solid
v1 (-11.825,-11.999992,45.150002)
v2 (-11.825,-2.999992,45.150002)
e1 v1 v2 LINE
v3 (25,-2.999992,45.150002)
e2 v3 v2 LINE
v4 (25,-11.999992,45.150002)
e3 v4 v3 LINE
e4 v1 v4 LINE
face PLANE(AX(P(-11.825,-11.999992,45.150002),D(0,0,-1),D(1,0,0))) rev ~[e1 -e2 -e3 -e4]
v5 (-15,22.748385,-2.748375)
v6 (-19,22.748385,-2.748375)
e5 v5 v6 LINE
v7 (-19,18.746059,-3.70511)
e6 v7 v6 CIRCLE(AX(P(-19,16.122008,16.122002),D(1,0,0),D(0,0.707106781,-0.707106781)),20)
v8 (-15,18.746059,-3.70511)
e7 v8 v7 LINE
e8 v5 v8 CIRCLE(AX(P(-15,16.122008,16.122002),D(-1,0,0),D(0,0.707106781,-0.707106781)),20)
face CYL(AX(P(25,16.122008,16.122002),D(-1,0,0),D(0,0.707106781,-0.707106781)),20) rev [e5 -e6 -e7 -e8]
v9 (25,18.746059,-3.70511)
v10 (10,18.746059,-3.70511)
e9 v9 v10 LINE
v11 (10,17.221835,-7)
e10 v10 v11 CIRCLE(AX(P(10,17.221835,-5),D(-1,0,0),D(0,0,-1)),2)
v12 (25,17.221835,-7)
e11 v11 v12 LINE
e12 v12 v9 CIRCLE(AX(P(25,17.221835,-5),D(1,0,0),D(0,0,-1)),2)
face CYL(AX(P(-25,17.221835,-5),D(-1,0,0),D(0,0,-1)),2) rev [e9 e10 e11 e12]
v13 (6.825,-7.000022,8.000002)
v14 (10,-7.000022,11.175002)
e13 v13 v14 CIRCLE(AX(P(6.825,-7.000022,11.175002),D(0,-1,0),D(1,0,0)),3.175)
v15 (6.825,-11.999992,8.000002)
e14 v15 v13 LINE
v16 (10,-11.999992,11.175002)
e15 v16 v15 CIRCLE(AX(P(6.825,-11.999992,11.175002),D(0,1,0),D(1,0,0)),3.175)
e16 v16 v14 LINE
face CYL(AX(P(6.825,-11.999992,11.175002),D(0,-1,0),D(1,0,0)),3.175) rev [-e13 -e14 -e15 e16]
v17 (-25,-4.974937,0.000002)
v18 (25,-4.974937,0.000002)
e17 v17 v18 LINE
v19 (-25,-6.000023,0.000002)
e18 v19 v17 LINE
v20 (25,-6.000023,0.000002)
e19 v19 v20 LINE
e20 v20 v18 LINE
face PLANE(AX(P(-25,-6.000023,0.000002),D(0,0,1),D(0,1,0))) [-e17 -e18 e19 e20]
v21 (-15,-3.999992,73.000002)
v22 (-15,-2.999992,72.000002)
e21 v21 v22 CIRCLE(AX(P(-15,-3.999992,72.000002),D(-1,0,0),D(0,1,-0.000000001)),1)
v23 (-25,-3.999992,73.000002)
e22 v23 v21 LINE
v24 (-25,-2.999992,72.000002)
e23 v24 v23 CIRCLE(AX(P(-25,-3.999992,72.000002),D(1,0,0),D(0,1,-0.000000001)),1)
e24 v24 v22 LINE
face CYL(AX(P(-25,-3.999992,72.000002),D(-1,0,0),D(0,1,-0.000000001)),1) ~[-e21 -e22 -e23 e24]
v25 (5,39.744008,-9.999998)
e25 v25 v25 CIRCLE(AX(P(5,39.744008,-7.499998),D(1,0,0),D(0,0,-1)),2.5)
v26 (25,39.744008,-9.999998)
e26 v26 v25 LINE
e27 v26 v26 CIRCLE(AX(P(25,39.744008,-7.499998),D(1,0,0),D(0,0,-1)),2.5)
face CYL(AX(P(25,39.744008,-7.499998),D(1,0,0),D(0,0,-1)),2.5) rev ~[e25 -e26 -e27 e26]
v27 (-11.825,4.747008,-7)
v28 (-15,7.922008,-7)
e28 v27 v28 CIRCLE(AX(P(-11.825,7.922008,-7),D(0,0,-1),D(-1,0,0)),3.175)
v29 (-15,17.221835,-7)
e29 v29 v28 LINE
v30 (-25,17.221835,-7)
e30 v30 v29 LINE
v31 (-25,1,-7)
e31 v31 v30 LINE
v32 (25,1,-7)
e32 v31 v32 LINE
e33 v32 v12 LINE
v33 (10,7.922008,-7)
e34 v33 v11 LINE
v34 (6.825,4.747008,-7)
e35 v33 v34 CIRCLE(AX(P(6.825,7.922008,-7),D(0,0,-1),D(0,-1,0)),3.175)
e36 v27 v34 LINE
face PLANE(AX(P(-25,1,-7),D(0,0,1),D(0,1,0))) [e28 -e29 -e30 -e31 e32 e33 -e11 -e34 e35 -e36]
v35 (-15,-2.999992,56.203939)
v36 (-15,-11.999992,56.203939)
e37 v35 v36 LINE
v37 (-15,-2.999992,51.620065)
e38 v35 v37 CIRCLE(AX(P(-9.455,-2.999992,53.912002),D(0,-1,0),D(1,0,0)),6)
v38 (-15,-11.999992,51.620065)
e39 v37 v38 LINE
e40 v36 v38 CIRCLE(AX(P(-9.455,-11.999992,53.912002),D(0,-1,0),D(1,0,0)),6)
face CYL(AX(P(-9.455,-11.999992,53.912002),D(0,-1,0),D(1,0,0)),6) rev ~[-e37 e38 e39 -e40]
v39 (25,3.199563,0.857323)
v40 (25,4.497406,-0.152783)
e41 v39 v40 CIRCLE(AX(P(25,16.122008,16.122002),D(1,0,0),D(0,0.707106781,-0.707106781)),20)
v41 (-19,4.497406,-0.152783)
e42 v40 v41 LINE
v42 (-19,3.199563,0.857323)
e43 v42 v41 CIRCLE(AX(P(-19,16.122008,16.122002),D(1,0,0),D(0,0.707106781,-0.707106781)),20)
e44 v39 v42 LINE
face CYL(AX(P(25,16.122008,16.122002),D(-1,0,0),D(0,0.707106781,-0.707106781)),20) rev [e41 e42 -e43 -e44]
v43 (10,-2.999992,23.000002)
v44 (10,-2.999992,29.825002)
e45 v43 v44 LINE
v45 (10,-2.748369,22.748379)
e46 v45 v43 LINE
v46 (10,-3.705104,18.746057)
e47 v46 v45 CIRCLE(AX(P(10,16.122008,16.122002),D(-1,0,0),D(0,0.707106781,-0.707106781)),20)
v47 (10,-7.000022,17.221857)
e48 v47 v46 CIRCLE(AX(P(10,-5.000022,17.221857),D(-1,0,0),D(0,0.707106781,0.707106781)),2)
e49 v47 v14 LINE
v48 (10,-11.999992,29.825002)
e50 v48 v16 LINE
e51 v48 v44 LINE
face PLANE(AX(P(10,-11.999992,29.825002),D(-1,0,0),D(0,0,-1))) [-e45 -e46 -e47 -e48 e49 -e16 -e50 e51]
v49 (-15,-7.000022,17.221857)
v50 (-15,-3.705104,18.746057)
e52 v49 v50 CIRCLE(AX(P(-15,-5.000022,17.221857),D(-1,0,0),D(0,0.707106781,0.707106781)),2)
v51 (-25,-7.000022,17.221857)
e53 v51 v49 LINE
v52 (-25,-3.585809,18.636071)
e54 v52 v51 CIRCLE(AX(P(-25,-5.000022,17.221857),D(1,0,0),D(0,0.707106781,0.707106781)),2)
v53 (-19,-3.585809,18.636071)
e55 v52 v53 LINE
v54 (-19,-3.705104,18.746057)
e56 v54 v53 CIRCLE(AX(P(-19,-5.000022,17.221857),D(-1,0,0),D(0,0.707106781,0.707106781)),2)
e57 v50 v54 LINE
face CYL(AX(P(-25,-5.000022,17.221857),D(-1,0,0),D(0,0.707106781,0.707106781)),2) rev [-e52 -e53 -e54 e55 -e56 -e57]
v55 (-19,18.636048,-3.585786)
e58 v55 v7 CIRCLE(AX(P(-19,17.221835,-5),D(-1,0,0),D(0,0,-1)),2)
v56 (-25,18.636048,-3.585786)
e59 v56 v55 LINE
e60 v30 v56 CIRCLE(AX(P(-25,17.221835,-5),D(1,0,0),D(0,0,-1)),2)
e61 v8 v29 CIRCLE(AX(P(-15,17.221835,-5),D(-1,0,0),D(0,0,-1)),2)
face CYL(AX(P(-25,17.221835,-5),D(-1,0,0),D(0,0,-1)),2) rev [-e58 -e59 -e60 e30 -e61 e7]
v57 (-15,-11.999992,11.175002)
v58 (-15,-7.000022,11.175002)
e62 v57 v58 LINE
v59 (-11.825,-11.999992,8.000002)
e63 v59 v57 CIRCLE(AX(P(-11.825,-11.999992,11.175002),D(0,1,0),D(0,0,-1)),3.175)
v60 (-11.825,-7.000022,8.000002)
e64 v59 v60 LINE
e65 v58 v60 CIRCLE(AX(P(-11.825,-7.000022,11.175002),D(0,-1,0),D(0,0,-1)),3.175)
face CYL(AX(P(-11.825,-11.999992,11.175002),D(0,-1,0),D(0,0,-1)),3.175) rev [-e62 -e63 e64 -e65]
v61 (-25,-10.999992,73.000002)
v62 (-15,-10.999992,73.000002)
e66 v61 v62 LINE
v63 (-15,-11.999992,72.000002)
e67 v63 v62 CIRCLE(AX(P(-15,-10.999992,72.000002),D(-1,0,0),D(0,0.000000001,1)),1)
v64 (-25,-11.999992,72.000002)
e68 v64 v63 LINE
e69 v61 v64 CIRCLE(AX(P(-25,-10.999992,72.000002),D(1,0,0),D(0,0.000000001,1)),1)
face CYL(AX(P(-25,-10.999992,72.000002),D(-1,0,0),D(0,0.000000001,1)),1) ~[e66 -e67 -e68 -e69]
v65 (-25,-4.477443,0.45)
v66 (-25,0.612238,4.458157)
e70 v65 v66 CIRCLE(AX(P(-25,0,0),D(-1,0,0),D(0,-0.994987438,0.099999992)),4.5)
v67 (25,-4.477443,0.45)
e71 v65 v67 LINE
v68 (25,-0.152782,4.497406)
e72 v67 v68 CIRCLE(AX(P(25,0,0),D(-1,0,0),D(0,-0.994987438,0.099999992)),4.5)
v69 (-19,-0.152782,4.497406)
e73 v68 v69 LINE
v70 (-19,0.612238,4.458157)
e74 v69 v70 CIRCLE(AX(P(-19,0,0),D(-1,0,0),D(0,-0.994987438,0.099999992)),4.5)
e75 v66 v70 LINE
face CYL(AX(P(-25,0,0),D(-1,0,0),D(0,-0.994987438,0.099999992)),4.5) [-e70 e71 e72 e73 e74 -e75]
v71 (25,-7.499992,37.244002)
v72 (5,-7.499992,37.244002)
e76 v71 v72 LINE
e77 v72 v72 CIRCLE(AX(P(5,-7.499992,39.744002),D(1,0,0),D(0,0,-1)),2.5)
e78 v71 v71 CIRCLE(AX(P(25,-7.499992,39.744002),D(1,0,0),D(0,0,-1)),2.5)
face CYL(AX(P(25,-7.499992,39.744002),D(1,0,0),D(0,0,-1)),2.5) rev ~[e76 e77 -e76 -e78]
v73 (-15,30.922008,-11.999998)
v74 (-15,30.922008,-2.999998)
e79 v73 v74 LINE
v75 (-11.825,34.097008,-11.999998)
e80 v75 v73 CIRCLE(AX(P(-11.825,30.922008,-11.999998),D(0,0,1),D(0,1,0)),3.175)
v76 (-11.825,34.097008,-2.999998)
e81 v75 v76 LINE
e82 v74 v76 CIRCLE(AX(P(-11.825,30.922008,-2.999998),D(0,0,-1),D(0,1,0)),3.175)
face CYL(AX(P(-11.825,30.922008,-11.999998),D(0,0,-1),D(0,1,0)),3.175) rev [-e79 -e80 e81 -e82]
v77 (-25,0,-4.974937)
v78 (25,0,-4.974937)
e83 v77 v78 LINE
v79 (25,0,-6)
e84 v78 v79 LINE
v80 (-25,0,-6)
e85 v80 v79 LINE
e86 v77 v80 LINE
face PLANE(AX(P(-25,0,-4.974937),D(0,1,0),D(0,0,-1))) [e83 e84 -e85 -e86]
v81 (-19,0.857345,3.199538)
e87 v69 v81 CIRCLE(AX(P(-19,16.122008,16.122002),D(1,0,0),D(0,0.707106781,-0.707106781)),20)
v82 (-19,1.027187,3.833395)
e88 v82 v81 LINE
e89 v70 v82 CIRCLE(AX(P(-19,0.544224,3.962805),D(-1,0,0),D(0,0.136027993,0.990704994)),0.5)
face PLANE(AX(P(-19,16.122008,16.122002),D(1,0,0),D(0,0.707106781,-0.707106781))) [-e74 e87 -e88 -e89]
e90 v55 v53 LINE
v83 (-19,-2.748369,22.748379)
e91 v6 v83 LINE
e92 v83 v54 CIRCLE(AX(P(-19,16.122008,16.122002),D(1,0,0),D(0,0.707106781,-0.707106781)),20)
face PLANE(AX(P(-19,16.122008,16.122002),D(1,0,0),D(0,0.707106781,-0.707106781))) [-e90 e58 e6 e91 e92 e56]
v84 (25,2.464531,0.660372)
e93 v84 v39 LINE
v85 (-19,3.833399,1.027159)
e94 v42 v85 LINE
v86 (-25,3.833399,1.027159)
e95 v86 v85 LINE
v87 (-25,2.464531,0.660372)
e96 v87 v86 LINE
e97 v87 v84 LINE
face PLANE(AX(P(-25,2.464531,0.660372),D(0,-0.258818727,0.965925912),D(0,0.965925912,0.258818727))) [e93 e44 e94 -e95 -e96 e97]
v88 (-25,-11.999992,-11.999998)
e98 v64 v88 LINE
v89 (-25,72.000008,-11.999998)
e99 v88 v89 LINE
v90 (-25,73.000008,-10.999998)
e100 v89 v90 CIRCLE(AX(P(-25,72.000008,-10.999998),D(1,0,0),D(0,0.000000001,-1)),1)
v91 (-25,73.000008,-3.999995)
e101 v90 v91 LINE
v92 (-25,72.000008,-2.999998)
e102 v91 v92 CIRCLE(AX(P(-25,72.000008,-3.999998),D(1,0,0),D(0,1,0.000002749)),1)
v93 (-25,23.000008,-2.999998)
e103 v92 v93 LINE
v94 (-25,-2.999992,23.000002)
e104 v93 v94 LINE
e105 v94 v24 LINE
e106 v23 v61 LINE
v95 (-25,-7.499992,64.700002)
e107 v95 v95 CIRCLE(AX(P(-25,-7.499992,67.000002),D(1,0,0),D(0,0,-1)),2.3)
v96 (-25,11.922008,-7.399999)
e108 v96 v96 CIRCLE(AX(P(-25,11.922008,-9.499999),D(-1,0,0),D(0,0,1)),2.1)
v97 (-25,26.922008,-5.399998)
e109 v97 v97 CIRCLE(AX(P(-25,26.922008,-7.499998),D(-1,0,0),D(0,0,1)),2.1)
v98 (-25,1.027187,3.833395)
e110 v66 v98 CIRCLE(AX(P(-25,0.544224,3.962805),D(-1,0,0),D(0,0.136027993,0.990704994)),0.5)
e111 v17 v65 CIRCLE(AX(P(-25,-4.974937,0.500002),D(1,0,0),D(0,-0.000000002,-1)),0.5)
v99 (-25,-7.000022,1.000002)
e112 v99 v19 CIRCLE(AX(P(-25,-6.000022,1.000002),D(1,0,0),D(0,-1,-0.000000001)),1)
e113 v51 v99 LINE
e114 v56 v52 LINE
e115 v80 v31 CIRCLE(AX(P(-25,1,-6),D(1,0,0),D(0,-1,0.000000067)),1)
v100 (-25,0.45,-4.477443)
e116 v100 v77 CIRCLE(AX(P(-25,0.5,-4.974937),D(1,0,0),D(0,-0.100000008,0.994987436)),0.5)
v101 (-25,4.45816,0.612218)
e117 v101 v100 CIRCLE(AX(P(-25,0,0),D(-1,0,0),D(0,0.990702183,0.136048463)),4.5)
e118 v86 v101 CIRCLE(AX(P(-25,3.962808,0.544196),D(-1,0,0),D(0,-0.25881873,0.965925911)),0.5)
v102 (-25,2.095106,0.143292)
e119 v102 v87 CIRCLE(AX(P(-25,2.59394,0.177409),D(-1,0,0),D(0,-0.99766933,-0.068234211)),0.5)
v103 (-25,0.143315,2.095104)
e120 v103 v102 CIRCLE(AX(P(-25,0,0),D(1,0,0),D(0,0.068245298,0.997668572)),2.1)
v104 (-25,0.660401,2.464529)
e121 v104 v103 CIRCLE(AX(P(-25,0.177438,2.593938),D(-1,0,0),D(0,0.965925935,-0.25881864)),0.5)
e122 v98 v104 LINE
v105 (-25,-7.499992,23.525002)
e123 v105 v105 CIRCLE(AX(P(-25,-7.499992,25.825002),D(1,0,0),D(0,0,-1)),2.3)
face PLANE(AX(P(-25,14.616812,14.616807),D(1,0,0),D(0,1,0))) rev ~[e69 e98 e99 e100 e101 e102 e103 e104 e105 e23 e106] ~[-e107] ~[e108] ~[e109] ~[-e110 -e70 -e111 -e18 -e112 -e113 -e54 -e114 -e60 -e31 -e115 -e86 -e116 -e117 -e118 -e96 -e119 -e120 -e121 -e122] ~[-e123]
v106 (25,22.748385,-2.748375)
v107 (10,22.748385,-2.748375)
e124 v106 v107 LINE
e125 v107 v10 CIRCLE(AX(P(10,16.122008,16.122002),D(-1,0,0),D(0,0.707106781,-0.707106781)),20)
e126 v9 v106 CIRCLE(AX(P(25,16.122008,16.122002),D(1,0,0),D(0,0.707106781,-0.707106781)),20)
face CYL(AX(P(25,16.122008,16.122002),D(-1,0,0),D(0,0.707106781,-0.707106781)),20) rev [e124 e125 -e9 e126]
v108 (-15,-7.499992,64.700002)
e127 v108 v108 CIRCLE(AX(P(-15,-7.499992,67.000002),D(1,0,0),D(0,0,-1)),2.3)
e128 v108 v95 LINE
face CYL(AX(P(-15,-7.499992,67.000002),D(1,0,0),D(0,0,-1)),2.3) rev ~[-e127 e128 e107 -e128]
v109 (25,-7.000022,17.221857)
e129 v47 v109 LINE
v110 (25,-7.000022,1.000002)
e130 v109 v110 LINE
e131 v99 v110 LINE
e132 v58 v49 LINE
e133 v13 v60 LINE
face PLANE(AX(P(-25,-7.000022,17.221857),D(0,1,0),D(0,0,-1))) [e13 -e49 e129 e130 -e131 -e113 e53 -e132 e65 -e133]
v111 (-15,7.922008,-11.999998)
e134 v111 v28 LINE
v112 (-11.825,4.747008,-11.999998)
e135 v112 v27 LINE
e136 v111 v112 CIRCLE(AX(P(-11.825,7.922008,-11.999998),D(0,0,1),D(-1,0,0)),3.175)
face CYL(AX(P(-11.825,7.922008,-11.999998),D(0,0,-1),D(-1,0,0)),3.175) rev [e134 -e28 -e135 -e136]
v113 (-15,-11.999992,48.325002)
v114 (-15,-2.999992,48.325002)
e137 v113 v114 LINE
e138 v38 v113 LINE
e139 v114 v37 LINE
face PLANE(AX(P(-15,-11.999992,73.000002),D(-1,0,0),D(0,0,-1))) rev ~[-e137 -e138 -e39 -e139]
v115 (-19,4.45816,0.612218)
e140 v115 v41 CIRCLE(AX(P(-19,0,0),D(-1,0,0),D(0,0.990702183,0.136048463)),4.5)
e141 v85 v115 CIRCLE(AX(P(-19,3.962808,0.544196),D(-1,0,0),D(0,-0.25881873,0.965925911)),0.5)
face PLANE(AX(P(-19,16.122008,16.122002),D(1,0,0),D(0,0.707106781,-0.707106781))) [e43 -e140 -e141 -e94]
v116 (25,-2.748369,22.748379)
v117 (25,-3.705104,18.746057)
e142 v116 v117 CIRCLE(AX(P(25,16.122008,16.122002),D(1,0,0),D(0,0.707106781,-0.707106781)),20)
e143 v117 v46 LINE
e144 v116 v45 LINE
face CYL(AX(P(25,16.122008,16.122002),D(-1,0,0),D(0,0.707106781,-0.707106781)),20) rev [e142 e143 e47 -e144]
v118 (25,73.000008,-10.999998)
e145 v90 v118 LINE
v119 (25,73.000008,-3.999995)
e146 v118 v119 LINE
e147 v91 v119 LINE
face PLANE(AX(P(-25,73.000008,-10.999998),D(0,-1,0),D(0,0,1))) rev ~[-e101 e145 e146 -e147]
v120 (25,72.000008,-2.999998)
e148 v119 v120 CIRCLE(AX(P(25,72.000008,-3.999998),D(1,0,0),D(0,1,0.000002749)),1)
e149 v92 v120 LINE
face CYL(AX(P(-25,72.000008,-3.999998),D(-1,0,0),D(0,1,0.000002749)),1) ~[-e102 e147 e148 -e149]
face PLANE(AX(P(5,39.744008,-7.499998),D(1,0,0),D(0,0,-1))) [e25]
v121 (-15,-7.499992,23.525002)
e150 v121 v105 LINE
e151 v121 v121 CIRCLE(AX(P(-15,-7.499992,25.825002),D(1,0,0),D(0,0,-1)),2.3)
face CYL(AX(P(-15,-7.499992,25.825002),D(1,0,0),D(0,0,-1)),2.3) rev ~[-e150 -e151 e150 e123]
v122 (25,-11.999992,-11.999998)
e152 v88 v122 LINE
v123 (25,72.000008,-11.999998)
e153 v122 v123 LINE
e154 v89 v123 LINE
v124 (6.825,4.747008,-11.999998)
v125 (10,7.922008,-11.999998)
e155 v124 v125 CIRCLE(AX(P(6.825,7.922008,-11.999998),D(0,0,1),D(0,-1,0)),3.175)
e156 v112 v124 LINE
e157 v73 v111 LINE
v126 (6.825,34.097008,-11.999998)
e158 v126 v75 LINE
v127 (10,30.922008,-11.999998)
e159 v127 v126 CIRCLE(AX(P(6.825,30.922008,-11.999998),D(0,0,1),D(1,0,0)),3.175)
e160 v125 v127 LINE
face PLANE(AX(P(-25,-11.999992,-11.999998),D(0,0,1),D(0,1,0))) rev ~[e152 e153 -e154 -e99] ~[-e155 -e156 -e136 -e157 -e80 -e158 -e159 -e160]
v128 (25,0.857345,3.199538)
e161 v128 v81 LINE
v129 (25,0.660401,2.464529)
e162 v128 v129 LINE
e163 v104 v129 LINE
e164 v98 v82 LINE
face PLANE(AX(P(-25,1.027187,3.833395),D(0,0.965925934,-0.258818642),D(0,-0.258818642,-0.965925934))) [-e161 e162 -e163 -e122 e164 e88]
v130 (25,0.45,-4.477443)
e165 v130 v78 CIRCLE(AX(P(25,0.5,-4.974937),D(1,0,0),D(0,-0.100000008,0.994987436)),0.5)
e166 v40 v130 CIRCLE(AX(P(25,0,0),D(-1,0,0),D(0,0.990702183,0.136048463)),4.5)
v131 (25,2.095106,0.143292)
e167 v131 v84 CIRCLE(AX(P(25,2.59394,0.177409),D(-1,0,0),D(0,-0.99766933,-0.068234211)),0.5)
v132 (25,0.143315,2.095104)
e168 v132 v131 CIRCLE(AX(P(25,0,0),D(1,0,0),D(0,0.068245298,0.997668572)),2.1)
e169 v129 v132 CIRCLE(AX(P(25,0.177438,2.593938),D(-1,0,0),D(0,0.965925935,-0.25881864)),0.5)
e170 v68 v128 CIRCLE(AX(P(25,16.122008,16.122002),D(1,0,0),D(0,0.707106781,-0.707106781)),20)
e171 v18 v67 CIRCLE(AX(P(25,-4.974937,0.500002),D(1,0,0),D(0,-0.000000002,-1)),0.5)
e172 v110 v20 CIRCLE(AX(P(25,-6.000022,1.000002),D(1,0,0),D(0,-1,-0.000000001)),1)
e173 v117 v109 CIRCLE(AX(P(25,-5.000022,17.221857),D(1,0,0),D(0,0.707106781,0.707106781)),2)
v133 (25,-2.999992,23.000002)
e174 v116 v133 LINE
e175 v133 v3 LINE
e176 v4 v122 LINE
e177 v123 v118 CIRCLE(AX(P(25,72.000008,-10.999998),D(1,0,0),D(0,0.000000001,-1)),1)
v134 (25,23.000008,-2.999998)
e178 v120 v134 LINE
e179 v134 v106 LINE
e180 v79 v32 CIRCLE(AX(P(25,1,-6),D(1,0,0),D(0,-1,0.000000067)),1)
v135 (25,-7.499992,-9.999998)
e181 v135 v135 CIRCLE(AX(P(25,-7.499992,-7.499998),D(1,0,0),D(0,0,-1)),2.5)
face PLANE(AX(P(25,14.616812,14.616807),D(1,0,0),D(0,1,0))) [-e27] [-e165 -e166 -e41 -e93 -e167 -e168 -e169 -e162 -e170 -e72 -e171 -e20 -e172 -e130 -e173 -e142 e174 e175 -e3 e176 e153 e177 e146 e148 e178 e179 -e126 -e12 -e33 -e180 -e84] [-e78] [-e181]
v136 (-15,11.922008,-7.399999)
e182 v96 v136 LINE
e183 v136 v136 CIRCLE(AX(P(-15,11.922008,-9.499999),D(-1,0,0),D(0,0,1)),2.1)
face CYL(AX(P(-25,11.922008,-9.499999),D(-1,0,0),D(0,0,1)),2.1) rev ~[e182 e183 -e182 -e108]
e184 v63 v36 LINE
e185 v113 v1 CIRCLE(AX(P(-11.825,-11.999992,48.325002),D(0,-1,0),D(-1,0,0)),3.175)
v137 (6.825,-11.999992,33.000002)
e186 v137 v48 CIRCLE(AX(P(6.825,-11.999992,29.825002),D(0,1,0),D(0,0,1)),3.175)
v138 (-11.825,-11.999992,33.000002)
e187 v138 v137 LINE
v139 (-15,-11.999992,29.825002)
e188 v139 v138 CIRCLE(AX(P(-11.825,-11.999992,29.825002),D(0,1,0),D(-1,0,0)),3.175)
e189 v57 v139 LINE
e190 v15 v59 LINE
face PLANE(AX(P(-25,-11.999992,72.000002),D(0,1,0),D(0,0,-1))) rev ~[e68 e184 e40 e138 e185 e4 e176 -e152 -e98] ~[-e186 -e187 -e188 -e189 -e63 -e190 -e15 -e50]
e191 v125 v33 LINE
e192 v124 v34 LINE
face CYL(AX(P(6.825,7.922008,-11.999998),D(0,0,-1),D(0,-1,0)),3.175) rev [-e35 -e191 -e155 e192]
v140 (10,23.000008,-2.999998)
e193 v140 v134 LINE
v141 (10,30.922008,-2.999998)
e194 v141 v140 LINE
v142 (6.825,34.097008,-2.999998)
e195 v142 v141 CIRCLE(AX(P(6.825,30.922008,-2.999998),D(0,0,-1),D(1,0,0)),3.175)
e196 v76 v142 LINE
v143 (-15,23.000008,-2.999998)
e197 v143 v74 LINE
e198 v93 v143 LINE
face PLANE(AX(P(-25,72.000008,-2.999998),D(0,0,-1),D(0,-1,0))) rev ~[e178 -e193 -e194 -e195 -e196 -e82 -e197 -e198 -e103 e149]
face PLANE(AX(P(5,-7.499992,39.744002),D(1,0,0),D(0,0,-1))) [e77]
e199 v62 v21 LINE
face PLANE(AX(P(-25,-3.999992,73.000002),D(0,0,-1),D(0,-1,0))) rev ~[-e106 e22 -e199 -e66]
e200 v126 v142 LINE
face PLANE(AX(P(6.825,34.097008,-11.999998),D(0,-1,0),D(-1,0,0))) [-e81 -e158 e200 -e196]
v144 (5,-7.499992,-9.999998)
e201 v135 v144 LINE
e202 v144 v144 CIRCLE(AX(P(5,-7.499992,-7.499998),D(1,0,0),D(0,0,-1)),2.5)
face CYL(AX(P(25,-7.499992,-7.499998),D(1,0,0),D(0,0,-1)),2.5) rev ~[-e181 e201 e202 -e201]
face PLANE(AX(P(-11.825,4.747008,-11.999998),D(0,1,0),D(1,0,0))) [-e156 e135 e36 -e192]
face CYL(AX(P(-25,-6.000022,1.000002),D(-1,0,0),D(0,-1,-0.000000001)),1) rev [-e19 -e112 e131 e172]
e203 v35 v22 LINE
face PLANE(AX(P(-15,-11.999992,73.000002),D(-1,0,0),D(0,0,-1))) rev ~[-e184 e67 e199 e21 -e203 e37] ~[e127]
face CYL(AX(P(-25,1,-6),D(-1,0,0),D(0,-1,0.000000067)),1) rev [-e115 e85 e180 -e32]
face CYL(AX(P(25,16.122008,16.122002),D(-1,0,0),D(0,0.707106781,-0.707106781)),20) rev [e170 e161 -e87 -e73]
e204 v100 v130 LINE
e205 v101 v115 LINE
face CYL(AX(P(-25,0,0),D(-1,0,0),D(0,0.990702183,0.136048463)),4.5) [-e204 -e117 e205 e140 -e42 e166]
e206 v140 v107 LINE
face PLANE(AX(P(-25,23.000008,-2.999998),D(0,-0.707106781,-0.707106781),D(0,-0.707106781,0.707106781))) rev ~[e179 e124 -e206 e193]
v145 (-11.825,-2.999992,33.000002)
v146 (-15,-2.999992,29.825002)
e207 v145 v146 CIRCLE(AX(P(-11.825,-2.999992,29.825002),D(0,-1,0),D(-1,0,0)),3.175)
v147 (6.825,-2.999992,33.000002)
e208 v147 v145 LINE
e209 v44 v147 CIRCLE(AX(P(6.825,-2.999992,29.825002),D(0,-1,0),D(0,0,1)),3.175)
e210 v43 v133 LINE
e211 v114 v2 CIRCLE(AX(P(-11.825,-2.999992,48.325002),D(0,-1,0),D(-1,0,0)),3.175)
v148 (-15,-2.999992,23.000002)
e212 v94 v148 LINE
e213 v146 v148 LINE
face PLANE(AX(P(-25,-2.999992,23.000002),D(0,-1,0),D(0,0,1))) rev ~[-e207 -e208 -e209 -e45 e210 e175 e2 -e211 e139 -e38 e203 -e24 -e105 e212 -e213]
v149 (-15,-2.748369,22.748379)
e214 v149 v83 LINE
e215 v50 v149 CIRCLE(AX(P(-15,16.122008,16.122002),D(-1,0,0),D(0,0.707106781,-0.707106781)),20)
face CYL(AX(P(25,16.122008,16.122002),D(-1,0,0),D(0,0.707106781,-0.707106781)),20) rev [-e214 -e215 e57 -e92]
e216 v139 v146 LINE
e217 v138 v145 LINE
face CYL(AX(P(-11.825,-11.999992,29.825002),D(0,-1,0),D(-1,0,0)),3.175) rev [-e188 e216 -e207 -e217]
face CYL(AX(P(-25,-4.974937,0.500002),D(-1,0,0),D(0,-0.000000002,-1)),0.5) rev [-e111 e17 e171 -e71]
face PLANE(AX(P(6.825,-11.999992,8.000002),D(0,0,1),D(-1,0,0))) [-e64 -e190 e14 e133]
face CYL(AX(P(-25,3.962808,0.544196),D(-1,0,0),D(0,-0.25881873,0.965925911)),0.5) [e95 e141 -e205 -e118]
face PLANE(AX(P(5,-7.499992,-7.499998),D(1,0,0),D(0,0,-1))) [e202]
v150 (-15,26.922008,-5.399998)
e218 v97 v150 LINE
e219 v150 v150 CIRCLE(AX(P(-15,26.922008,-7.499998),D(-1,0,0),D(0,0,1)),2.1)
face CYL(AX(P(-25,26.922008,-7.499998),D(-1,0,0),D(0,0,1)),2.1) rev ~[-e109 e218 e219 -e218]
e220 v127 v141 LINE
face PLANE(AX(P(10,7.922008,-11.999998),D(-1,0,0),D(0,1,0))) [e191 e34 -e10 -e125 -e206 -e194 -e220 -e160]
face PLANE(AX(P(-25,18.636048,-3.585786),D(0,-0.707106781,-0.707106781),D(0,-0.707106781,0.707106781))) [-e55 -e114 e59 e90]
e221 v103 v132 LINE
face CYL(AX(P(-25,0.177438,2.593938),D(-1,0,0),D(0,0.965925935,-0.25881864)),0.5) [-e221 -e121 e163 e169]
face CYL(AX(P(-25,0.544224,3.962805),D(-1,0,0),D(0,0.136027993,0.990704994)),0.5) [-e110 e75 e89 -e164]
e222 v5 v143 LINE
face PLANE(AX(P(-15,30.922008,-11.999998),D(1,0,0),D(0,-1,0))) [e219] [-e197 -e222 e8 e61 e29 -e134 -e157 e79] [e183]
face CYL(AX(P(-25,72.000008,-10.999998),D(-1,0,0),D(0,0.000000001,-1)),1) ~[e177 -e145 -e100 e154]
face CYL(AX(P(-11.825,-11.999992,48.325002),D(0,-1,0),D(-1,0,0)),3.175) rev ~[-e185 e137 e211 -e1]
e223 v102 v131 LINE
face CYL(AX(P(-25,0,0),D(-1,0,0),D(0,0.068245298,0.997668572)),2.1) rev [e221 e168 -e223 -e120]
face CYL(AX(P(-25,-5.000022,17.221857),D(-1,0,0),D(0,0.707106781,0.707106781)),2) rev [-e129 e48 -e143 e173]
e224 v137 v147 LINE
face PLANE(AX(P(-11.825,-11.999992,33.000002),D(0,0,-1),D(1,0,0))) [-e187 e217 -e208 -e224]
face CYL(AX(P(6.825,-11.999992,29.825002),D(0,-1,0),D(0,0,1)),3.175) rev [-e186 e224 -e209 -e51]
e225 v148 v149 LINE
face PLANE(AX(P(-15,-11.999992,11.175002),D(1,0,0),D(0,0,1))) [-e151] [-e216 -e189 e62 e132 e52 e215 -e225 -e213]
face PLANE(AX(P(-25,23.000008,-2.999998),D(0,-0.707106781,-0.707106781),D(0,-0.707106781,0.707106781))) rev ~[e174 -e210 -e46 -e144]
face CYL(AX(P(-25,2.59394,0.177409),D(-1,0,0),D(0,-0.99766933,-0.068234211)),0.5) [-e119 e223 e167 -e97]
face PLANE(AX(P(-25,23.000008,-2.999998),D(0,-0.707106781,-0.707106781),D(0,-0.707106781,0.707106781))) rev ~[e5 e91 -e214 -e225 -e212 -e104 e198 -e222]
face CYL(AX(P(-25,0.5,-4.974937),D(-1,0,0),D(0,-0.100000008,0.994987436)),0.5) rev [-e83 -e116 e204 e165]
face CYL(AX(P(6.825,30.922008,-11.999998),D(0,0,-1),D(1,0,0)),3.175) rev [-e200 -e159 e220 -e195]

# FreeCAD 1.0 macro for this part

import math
import FreeCAD as App
import Part
import Sketcher
Q = App.Units.Quantity

doc = App.newDocument("Part")
body = doc.addObject("PartDesign::Body", "Body")

# Sketch on YZ plane
sketch1 = body.newObject("Sketcher::SketchObject", "Sketch")
sketch1.AttachmentSupport = (doc.getObject("YZ_Plane"), [""])
sketch1.MapMode = "FlatFace"
sketch1.AttachmentOffset = App.Placement(App.Vector(0, 0, -25), App.Rotation())
sketch1.addGeometry(Part.LineSegment(App.Vector(-12, -12, 0), App.Vector(72, -12, 0)), False)
sketch1.addGeometry(Part.ArcOfCircle(Part.Circle(App.Vector(72, -11, 0), App.Vector(0, 0, 1), 1), math.radians(-90), math.radians(0)), False)
sketch1.addGeometry(Part.LineSegment(App.Vector(73, -11, 0), App.Vector(73, -4, 0)), False)
sketch1.addGeometry(Part.ArcOfCircle(Part.Circle(App.Vector(72, -4, 0), App.Vector(0, 0, 1), 1), math.radians(0), math.radians(90)), False)
sketch1.addGeometry(Part.LineSegment(App.Vector(72, -3, 0), App.Vector(23, -3, 0)), False)
sketch1.addGeometry(Part.LineSegment(App.Vector(23, -3, 0), App.Vector(-3, 23, 0)), False)
sketch1.addGeometry(Part.LineSegment(App.Vector(-3, 23, 0), App.Vector(-3, 72, 0)), False)
sketch1.addGeometry(Part.ArcOfCircle(Part.Circle(App.Vector(-4, 72, 0), App.Vector(0, 0, 1), 1), math.radians(0), math.radians(90)), False)
sketch1.addGeometry(Part.LineSegment(App.Vector(-4, 73, 0), App.Vector(-11, 73, 0)), False)
sketch1.addGeometry(Part.ArcOfCircle(Part.Circle(App.Vector(-11, 72, 0), App.Vector(0, 0, 1), 1), math.radians(90), math.radians(180)), False)
sketch1.addGeometry(Part.LineSegment(App.Vector(-12, 72, 0), App.Vector(-12, -12, 0)), False)
sketch1.addGeometry(Part.LineSegment(App.Vector(17.22, -7, 0), App.Vector(1, -7, 0)), False)
sketch1.addGeometry(Part.ArcOfCircle(Part.Circle(App.Vector(1, -6, 0), App.Vector(0, 0, 1), 1), math.radians(180), math.radians(270)), False)
sketch1.addGeometry(Part.LineSegment(App.Vector(0, -6, 0), App.Vector(0, -4.97, 0)), False)
sketch1.addGeometry(Part.ArcOfCircle(Part.Circle(App.Vector(0.5, -4.97, 0), App.Vector(0, 0, 1), 0.5), math.radians(96), math.radians(180)), False)
sketch1.addGeometry(Part.ArcOfCircle(Part.Circle(App.Vector(0, 0, 0), App.Vector(0, 0, 1), 4.5), math.radians(-84), math.radians(8)), False)
sketch1.addGeometry(Part.ArcOfCircle(Part.Circle(App.Vector(3.96, 0.54, 0), App.Vector(0, 0, 1), 0.5), math.radians(8), math.radians(105)), False)
sketch1.addGeometry(Part.LineSegment(App.Vector(3.83, 1.03, 0), App.Vector(2.46, 0.66, 0)), False)
sketch1.addGeometry(Part.ArcOfCircle(Part.Circle(App.Vector(2.59, 0.18, 0), App.Vector(0, 0, 1), 0.5), math.radians(105), math.radians(184)), False)
sketch1.addGeometry(Part.ArcOfCircle(Part.Circle(App.Vector(0, 0, 0), App.Vector(0, 0, 1), 2.1), math.radians(86), math.radians(364)), False)
sketch1.addGeometry(Part.ArcOfCircle(Part.Circle(App.Vector(0.18, 2.59, 0), App.Vector(0, 0, 1), 0.5), math.radians(-94), math.radians(-15)), False)
sketch1.addGeometry(Part.LineSegment(App.Vector(0.66, 2.46, 0), App.Vector(1.03, 3.83, 0)), False)
sketch1.addGeometry(Part.ArcOfCircle(Part.Circle(App.Vector(0.54, 3.96, 0), App.Vector(0, 0, 1), 0.5), math.radians(-15), math.radians(82)), False)
sketch1.addGeometry(Part.ArcOfCircle(Part.Circle(App.Vector(0, 0, 0), App.Vector(0, 0, 1), 4.5), math.radians(82), math.radians(174)), False)
sketch1.addGeometry(Part.ArcOfCircle(Part.Circle(App.Vector(-4.97, 0.5, 0), App.Vector(0, 0, 1), 0.5), math.radians(-90), math.radians(-6)), False)
sketch1.addGeometry(Part.LineSegment(App.Vector(-4.97, 0, 0), App.Vector(-6, 0, 0)), False)
sketch1.addGeometry(Part.ArcOfCircle(Part.Circle(App.Vector(-6, 1, 0), App.Vector(0, 0, 1), 1), math.radians(-180), math.radians(-90)), False)
sketch1.addGeometry(Part.LineSegment(App.Vector(-7, 1, 0), App.Vector(-7, 17.22, 0)), False)
sketch1.addGeometry(Part.ArcOfCircle(Part.Circle(App.Vector(-5, 17.22, 0), App.Vector(0, 0, 1), 2), math.radians(45), math.radians(180)), False)
sketch1.addGeometry(Part.LineSegment(App.Vector(-3.59, 18.64, 0), App.Vector(18.64, -3.59, 0)), False)
sketch1.addGeometry(Part.ArcOfCircle(Part.Circle(App.Vector(17.22, -5, 0), App.Vector(0, 0, 1), 2), math.radians(-90), math.radians(45)), False)
sketch1.addConstraint(Sketcher.Constraint("Tangent", 0, 2, 1, 1))
sketch1.addConstraint(Sketcher.Constraint("Tangent", 1, 2, 2, 1))
sketch1.addConstraint(Sketcher.Constraint("Coincident", 2, 2, 3, 1))
sketch1.addConstraint(Sketcher.Constraint("Tangent", 3, 2, 4, 1))
sketch1.addConstraint(Sketcher.Constraint("Coincident", 4, 2, 5, 1))
sketch1.addConstraint(Sketcher.Constraint("Coincident", 5, 2, 6, 1))
sketch1.addConstraint(Sketcher.Constraint("Tangent", 6, 2, 7, 1))
sketch1.addConstraint(Sketcher.Constraint("Tangent", 7, 2, 8, 1))
sketch1.addConstraint(Sketcher.Constraint("Tangent", 8, 2, 9, 1))
sketch1.addConstraint(Sketcher.Constraint("Tangent", 9, 2, 10, 1))
sketch1.addConstraint(Sketcher.Constraint("Coincident", 10, 2, 0, 1))
sketch1.addConstraint(Sketcher.Constraint("Tangent", 11, 2, 12, 2))
sketch1.addConstraint(Sketcher.Constraint("Tangent", 12, 1, 13, 1))
sketch1.addConstraint(Sketcher.Constraint("Tangent", 13, 2, 14, 2))
sketch1.addConstraint(Sketcher.Constraint("Tangent", 14, 1, 15, 1))
sketch1.addConstraint(Sketcher.Constraint("Coincident", 15, 2, 16, 1))
sketch1.addConstraint(Sketcher.Constraint("Tangent", 16, 2, 17, 1))
sketch1.addConstraint(Sketcher.Constraint("Tangent", 17, 2, 18, 1))
sketch1.addConstraint(Sketcher.Constraint("Tangent", 18, 2, 19, 2))
sketch1.addConstraint(Sketcher.Constraint("Tangent", 19, 1, 20, 1))
sketch1.addConstraint(Sketcher.Constraint("Tangent", 20, 2, 21, 1))
sketch1.addConstraint(Sketcher.Constraint("Tangent", 21, 2, 22, 1))
sketch1.addConstraint(Sketcher.Constraint("Coincident", 22, 2, 23, 1))
sketch1.addConstraint(Sketcher.Constraint("Coincident", 23, 2, 24, 2))
sketch1.addConstraint(Sketcher.Constraint("Tangent", 24, 1, 25, 1))
sketch1.addConstraint(Sketcher.Constraint("Tangent", 25, 2, 26, 2))
sketch1.addConstraint(Sketcher.Constraint("Tangent", 26, 1, 27, 1))
sketch1.addConstraint(Sketcher.Constraint("Tangent", 27, 2, 28, 2))
sketch1.addConstraint(Sketcher.Constraint("Tangent", 28, 1, 29, 1))
sketch1.addConstraint(Sketcher.Constraint("Tangent", 29, 2, 30, 2))
sketch1.addConstraint(Sketcher.Constraint("Tangent", 30, 1, 11, 1))
sketch1.addConstraint(Sketcher.Constraint("Horizontal", 0))
sketch1.addConstraint(Sketcher.Constraint("Vertical", 2))
sketch1.addConstraint(Sketcher.Constraint("Horizontal", 4))
sketch1.addConstraint(Sketcher.Constraint("Vertical", 6))
sketch1.addConstraint(Sketcher.Constraint("Horizontal", 8))
sketch1.addConstraint(Sketcher.Constraint("Vertical", 10))
sketch1.addConstraint(Sketcher.Constraint("Horizontal", 11))
sketch1.addConstraint(Sketcher.Constraint("Vertical", 13))
sketch1.addConstraint(Sketcher.Constraint("Horizontal", 25))
sketch1.addConstraint(Sketcher.Constraint("Vertical", 27))
sketch1.addConstraint(Sketcher.Constraint("Coincident", 15, 3, -1, 1))
sketch1.addConstraint(Sketcher.Constraint("Coincident", 19, 3, -1, 1))
sketch1.addConstraint(Sketcher.Constraint("Coincident", 23, 3, -1, 1))
sketch1.addConstraint(Sketcher.Constraint("Equal", 1, 3))
sketch1.addConstraint(Sketcher.Constraint("Equal", 3, 7))
sketch1.addConstraint(Sketcher.Constraint("Equal", 7, 9))
sketch1.addConstraint(Sketcher.Constraint("Equal", 9, 12))
sketch1.addConstraint(Sketcher.Constraint("Equal", 14, 16))
sketch1.addConstraint(Sketcher.Constraint("Equal", 16, 18))
sketch1.addConstraint(Sketcher.Constraint("Equal", 18, 20))
sketch1.addConstraint(Sketcher.Constraint("Equal", 20, 22))
sketch1.addConstraint(Sketcher.Constraint("Equal", 15, 23))
sketch1.addConstraint(Sketcher.Constraint("Equal", 22, 24))
sketch1.addConstraint(Sketcher.Constraint("Equal", 12, 26))
sketch1.addConstraint(Sketcher.Constraint("Equal", 28, 30))
sketch1.addConstraint(Sketcher.Constraint("PointOnObject", 12, 1, -2))
sketch1.addConstraint(Sketcher.Constraint("Parallel", 5, 29))
sketch1.addConstraint(Sketcher.Constraint("Equal", 4, 6))
sketch1.addConstraint(Sketcher.Constraint("Equal", 0, 10))
sketch1.addConstraint(Sketcher.Constraint("Radius", 1, Q("1 mm")))
sketch1.addConstraint(Sketcher.Constraint("Radius", 28, Q("2 mm")))
sketch1.addConstraint(Sketcher.Constraint("Radius", 14, Q("0.5 mm")))
sketch1.addConstraint(Sketcher.Constraint("Radius", 15, Q("4.5 mm")))
sketch1.addConstraint(Sketcher.Constraint("Radius", 19, Q("2.1 mm")))
sketch1.addConstraint(Sketcher.Constraint("DistanceX", 0, 1, 0, 2, Q("84 mm")))
sketch1.addConstraint(Sketcher.Constraint("DistanceX", 4, 2, 4, 1, Q("49 mm")))
sketch1.addConstraint(Sketcher.Constraint("DistanceX", 8, 2, 8, 1, Q("7 mm")))
sketch1.addConstraint(Sketcher.Constraint("Angle", 5, Q("135 deg")))
sketch1.addConstraint(Sketcher.Constraint("Angle", 17, Q("-165.000019 deg")))
sketch1.addConstraint(Sketcher.Constraint("DistanceY", 1, 3, -1, 1, Q("10.999998 mm")))
sketch1.addConstraint(Sketcher.Constraint("DistanceY", 12, 3, -1, 1, Q("6 mm")))
sketch1.addConstraint(Sketcher.Constraint("DistanceY", 26, 3, 5, 2, Q("22 mm")))
sketch1.addConstraint(Sketcher.Constraint("DistanceY", -1, 1, 23, 2, Q("0.45 mm")))
sketch1.addConstraint(Sketcher.Constraint("DistanceX", -1, 1, 16, 2, Q("3.833399 mm")))
sketch1.addConstraint(Sketcher.Constraint("DistanceX", -1, 1, 20, 2, Q("0.660401 mm")))
sketch1.addConstraint(Sketcher.Constraint("DistanceX", 16, 3, 3, 3, Q("68.037199 mm")))
sketch1.addConstraint(Sketcher.Constraint("DistanceY", 19, 1, 22, 3, Q("1.867701 mm")))
sketch1.addConstraint(Sketcher.Constraint("DistanceX", 20, 3, 22, 2, Q("0.4348 mm")))
sketch1.addConstraint(Sketcher.Constraint("DistanceY", 22, 2, 27, 2, Q("12.7637 mm")))
sketch1.addConstraint(Sketcher.Constraint("DistanceX", 11, 2, 11, 1, Q("16.221835 mm")))
sketch1.addConstraint(Sketcher.Constraint("DistanceY", 2, 1, 2, 2, Q("7.000003 mm")))
sketch1.addConstraint(Sketcher.Constraint("DistanceX", -1, 1, 15, 2, Q("4.45816 mm")))
pad1 = body.newObject("PartDesign::Pad", "Pad")
pad1.Profile = sketch1
pad1.Length = 50

# Sketch on YZ plane
sketch2 = body.newObject("Sketcher::SketchObject", "Sketch001")
sketch2.AttachmentSupport = (doc.getObject("YZ_Plane"), [""])
sketch2.MapMode = "FlatFace"
sketch2.AttachmentOffset = App.Placement(App.Vector(0, 0, 25), App.Rotation())
sketch2.addGeometry(Part.Circle(App.Vector(-7.5, -7.5, 0), App.Vector(0, 0, 1), 2.5), False)
sketch2.addGeometry(Part.Circle(App.Vector(-7.5, 39.7, 0), App.Vector(0, 0, 1), 2.5), False)
sketch2.addGeometry(Part.Circle(App.Vector(39.7, -7.5, 0), App.Vector(0, 0, 1), 2.5), False)
sketch2.addConstraint(Sketcher.Constraint("Equal", 0, 1))
sketch2.addConstraint(Sketcher.Constraint("Equal", 1, 2))
sketch2.addConstraint(Sketcher.Constraint("Horizontal", 0, 3, 2, 3))
sketch2.addConstraint(Sketcher.Constraint("Vertical", 0, 3, 1, 3))
sketch2.addConstraint(Sketcher.Constraint("Diameter", 0, Q("5 mm")))
sketch2.addConstraint(Sketcher.Constraint("DistanceY", 0, 3, -1, 1, Q("7.499998 mm")))
sketch2.addConstraint(Sketcher.Constraint("DistanceY", -1, 1, 1, 3, Q("39.744002 mm")))
sketch2.addConstraint(Sketcher.Constraint("DistanceX", 0, 3, 2, 3, Q("47.244 mm")))
sketch2.addConstraint(Sketcher.Constraint("DistanceX", 0, 3, -1, 1, Q("7.499992 mm")))
pocket1 = body.newObject("PartDesign::Pocket", "Pocket")
pocket1.Profile = sketch2
pocket1.Length = 20

# Sketch on an angled plane
sketch3 = body.newObject("Sketcher::SketchObject", "Sketch002")
sketch3.Placement = App.Placement(App.Vector(0, 2.977207, 29.266802), App.Rotation(App.Vector(-1, 0, 0), App.Vector(0, -0.707106781, 0.707106781), App.Vector(0, 0.707106781, 0.707106781), "ZXY"))
sketch3.addGeometry(Part.LineSegment(App.Vector(-25, -38.6, 0), App.Vector(19, -38.6, 0)), False)
sketch3.addGeometry(Part.LineSegment(App.Vector(19, -38.6, 0), App.Vector(19, -21.8, 0)), False)
sketch3.addGeometry(Part.LineSegment(App.Vector(19, -21.8, 0), App.Vector(25, -21.8, 0)), False)
sketch3.addGeometry(Part.LineSegment(App.Vector(25, -21.8, 0), App.Vector(25, -18.6, 0)), False)
sketch3.addGeometry(Part.LineSegment(App.Vector(25, -18.6, 0), App.Vector(-25, -18.6, 0)), False)
sketch3.addGeometry(Part.LineSegment(App.Vector(-25, -18.6, 0), App.Vector(-25, -38.6, 0)), False)
sketch3.addGeometry(Part.LineSegment(App.Vector(25, -18.6, 0), App.Vector(-25, -18.6, 0)), True)  # axis
sketch3.addConstraint(Sketcher.Constraint("Coincident", 0, 2, 1, 1))
sketch3.addConstraint(Sketcher.Constraint("Coincident", 1, 2, 2, 1))
sketch3.addConstraint(Sketcher.Constraint("Coincident", 2, 2, 3, 1))
sketch3.addConstraint(Sketcher.Constraint("Coincident", 3, 2, 4, 1))
sketch3.addConstraint(Sketcher.Constraint("Coincident", 4, 2, 5, 1))
sketch3.addConstraint(Sketcher.Constraint("Coincident", 5, 2, 0, 1))
sketch3.addConstraint(Sketcher.Constraint("Horizontal", 0))
sketch3.addConstraint(Sketcher.Constraint("Vertical", 1))
sketch3.addConstraint(Sketcher.Constraint("Horizontal", 2))
sketch3.addConstraint(Sketcher.Constraint("Vertical", 3))
sketch3.addConstraint(Sketcher.Constraint("Horizontal", 4))
sketch3.addConstraint(Sketcher.Constraint("Vertical", 5))
sketch3.addConstraint(Sketcher.Constraint("Horizontal", 6))
sketch3.addConstraint(Sketcher.Constraint("Coincident", 6, 1, 3, 2))
sketch3.addConstraint(Sketcher.Constraint("Vertical", 5, 2, 6, 2))
sketch3.addConstraint(Sketcher.Constraint("DistanceX", 0, 1, 0, 2, Q("44 mm")))
sketch3.addConstraint(Sketcher.Constraint("DistanceX", 2, 1, 2, 2, Q("6 mm")))
sketch3.addConstraint(Sketcher.Constraint("DistanceY", 5, 2, 5, 1, Q("20 mm")))
sketch3.addConstraint(Sketcher.Constraint("DistanceX", -1, 1, 0, 2, Q("19 mm")))
sketch3.addConstraint(Sketcher.Constraint("DistanceY", 1, 1, 1, 2, Q("16.825 mm")))
sketch3.addConstraint(Sketcher.Constraint("DistanceY", 0, 2, -1, 1, Q("38.589555 mm")))
groove = body.newObject("PartDesign::Groove", "Groove")
groove.Profile = sketch3
groove.ReferenceAxis = (sketch3, ["Axis0"])
groove.Angle = 360

# Sketch on XY plane
sketch4 = body.newObject("Sketcher::SketchObject", "Sketch003")
sketch4.AttachmentSupport = (doc.getObject("XY_Plane"), [""])
sketch4.MapMode = "FlatFace"
sketch4.AttachmentOffset = App.Placement(App.Vector(0, 0, -11.999998), App.Rotation())
sketch4.addGeometry(Part.LineSegment(App.Vector(6.8, 4.7, 0), App.Vector(-11.8, 4.7, 0)), False)
sketch4.addGeometry(Part.ArcOfCircle(Part.Circle(App.Vector(-11.8, 7.9, 0), App.Vector(0, 0, 1), 3.2), math.radians(-180), math.radians(-90)), False)
sketch4.addGeometry(Part.LineSegment(App.Vector(-15, 7.9, 0), App.Vector(-15, 30.9, 0)), False)
sketch4.addGeometry(Part.ArcOfCircle(Part.Circle(App.Vector(-11.8, 30.9, 0), App.Vector(0, 0, 1), 3.2), math.radians(90), math.radians(180)), False)
sketch4.addGeometry(Part.LineSegment(App.Vector(-11.8, 34.1, 0), App.Vector(6.8, 34.1, 0)), False)
sketch4.addGeometry(Part.ArcOfCircle(Part.Circle(App.Vector(6.8, 30.9, 0), App.Vector(0, 0, 1), 3.2), math.radians(0), math.radians(90)), False)
sketch4.addGeometry(Part.LineSegment(App.Vector(10, 30.9, 0), App.Vector(10, 7.9, 0)), False)
sketch4.addGeometry(Part.ArcOfCircle(Part.Circle(App.Vector(6.8, 7.9, 0), App.Vector(0, 0, 1), 3.2), math.radians(-90), math.radians(0)), False)
sketch4.addConstraint(Sketcher.Constraint("Tangent", 0, 2, 1, 2))
sketch4.addConstraint(Sketcher.Constraint("Tangent", 1, 1, 2, 1))
sketch4.addConstraint(Sketcher.Constraint("Tangent", 2, 2, 3, 2))
sketch4.addConstraint(Sketcher.Constraint("Tangent", 3, 1, 4, 1))
sketch4.addConstraint(Sketcher.Constraint("Tangent", 4, 2, 5, 2))
sketch4.addConstraint(Sketcher.Constraint("Tangent", 5, 1, 6, 1))
sketch4.addConstraint(Sketcher.Constraint("Tangent", 6, 2, 7, 2))
sketch4.addConstraint(Sketcher.Constraint("Tangent", 7, 1, 0, 1))
sketch4.addConstraint(Sketcher.Constraint("Horizontal", 0))
sketch4.addConstraint(Sketcher.Constraint("Vertical", 2))
sketch4.addConstraint(Sketcher.Constraint("Horizontal", 4))
sketch4.addConstraint(Sketcher.Constraint("Vertical", 6))
sketch4.addConstraint(Sketcher.Constraint("Equal", 1, 3))
sketch4.addConstraint(Sketcher.Constraint("Equal", 3, 5))
sketch4.addConstraint(Sketcher.Constraint("Equal", 5, 7))
sketch4.addConstraint(Sketcher.Constraint("DistanceY", 2, 1, 2, 2, Q("23 mm")))
sketch4.addConstraint(Sketcher.Constraint("DistanceX", 1, 1, -1, 1, Q("15 mm")))
sketch4.addConstraint(Sketcher.Constraint("DistanceX", -1, 1, 5, 1, Q("10 mm")))
sketch4.addConstraint(Sketcher.Constraint("Radius", 1, Q("3.175 mm")))
sketch4.addConstraint(Sketcher.Constraint("DistanceY", -1, 1, 1, 3, Q("7.922008 mm")))
pocket2 = body.newObject("PartDesign::Pocket", "Pocket001")
pocket2.Profile = sketch4
pocket2.Type = "UpToFirst"
pocket2.Reversed = True

# Sketch on YZ plane
sketch5 = body.newObject("Sketcher::SketchObject", "Sketch004")
sketch5.AttachmentSupport = (doc.getObject("YZ_Plane"), [""])
sketch5.MapMode = "FlatFace"
sketch5.AttachmentOffset = App.Placement(App.Vector(0, 0, -25), App.Rotation())
sketch5.addGeometry(Part.Circle(App.Vector(11.9, -9.5, 0), App.Vector(0, 0, 1), 2.1), False)
sketch5.addConstraint(Sketcher.Constraint("Diameter", 0, Q("4.2 mm")))
sketch5.addConstraint(Sketcher.Constraint("DistanceY", 0, 3, -1, 1, Q("9.499999 mm")))
sketch5.addConstraint(Sketcher.Constraint("DistanceX", -1, 1, 0, 3, Q("11.922008 mm")))
pocket3 = body.newObject("PartDesign::Pocket", "Pocket002")
pocket3.Profile = sketch5
pocket3.Type = "UpToFirst"
pocket3.Reversed = True

# Sketch on YZ plane
sketch6 = body.newObject("Sketcher::SketchObject", "Sketch005")
sketch6.AttachmentSupport = (doc.getObject("YZ_Plane"), [""])
sketch6.MapMode = "FlatFace"
sketch6.AttachmentOffset = App.Placement(App.Vector(0, 0, -25), App.Rotation())
sketch6.addGeometry(Part.Circle(App.Vector(26.9, -7.5, 0), App.Vector(0, 0, 1), 2.1), False)
sketch6.addConstraint(Sketcher.Constraint("Diameter", 0, Q("4.2 mm")))
sketch6.addConstraint(Sketcher.Constraint("DistanceY", 0, 3, -1, 1, Q("7.499998 mm")))
sketch6.addConstraint(Sketcher.Constraint("DistanceX", -1, 1, 0, 3, Q("26.922008 mm")))
pocket4 = body.newObject("PartDesign::Pocket", "Pocket003")
pocket4.Profile = sketch6
pocket4.Type = "UpToFirst"
pocket4.Reversed = True

# Sketch on XZ plane
sketch7 = body.newObject("Sketcher::SketchObject", "Sketch006")
sketch7.AttachmentSupport = (doc.getObject("XZ_Plane"), [""])
sketch7.MapMode = "FlatFace"
sketch7.AttachmentOffset = App.Placement(App.Vector(0, 0, 11.999992), App.Rotation())
sketch7.addGeometry(Part.LineSegment(App.Vector(-11.8, 8, 0), App.Vector(6.8, 8, 0)), False)
sketch7.addGeometry(Part.ArcOfCircle(Part.Circle(App.Vector(6.8, 11.2, 0), App.Vector(0, 0, 1), 3.2), math.radians(-90), math.radians(0)), False)
sketch7.addGeometry(Part.LineSegment(App.Vector(10, 11.2, 0), App.Vector(10, 29.8, 0)), False)
sketch7.addGeometry(Part.ArcOfCircle(Part.Circle(App.Vector(6.8, 29.8, 0), App.Vector(0, 0, 1), 3.2), math.radians(0), math.radians(90)), False)
sketch7.addGeometry(Part.LineSegment(App.Vector(6.8, 33, 0), App.Vector(-11.8, 33, 0)), False)
sketch7.addGeometry(Part.ArcOfCircle(Part.Circle(App.Vector(-11.8, 29.8, 0), App.Vector(0, 0, 1), 3.2), math.radians(90), math.radians(180)), False)
sketch7.addGeometry(Part.LineSegment(App.Vector(-15, 29.8, 0), App.Vector(-15, 11.2, 0)), False)
sketch7.addGeometry(Part.ArcOfCircle(Part.Circle(App.Vector(-11.8, 11.2, 0), App.Vector(0, 0, 1), 3.2), math.radians(-180), math.radians(-90)), False)
sketch7.addConstraint(Sketcher.Constraint("Tangent", 0, 2, 1, 1))
sketch7.addConstraint(Sketcher.Constraint("Tangent", 1, 2, 2, 1))
sketch7.addConstraint(Sketcher.Constraint("Tangent", 2, 2, 3, 1))
sketch7.addConstraint(Sketcher.Constraint("Tangent", 3, 2, 4, 1))
sketch7.addConstraint(Sketcher.Constraint("Tangent", 4, 2, 5, 1))
sketch7.addConstraint(Sketcher.Constraint("Tangent", 5, 2, 6, 1))
sketch7.addConstraint(Sketcher.Constraint("Tangent", 6, 2, 7, 1))
sketch7.addConstraint(Sketcher.Constraint("Tangent", 7, 2, 0, 1))
sketch7.addConstraint(Sketcher.Constraint("Horizontal", 0))
sketch7.addConstraint(Sketcher.Constraint("Vertical", 2))
sketch7.addConstraint(Sketcher.Constraint("Horizontal", 4))
sketch7.addConstraint(Sketcher.Constraint("Vertical", 6))
sketch7.addConstraint(Sketcher.Constraint("Equal", 1, 3))
sketch7.addConstraint(Sketcher.Constraint("Equal", 3, 5))
sketch7.addConstraint(Sketcher.Constraint("Equal", 5, 7))
sketch7.addConstraint(Sketcher.Constraint("Equal", 4, 2))
sketch7.addConstraint(Sketcher.Constraint("DistanceY", -1, 1, 0, 2, Q("8.000002 mm")))
sketch7.addConstraint(Sketcher.Constraint("DistanceX", -1, 1, 1, 2, Q("10 mm")))
sketch7.addConstraint(Sketcher.Constraint("DistanceY", -1, 1, 3, 2, Q("33.000002 mm")))
sketch7.addConstraint(Sketcher.Constraint("Radius", 1, Q("3.175 mm")))
pocket5 = body.newObject("PartDesign::Pocket", "Pocket004")
pocket5.Profile = sketch7
pocket5.Type = "UpToFirst"

# Sketch on XZ plane
sketch8 = body.newObject("Sketcher::SketchObject", "Sketch007")
sketch8.AttachmentSupport = (doc.getObject("XZ_Plane"), [""])
sketch8.MapMode = "FlatFace"
sketch8.AttachmentOffset = App.Placement(App.Vector(0, 0, 11.999992), App.Rotation())
sketch8.addGeometry(Part.LineSegment(App.Vector(25, 73, 0), App.Vector(-15, 73, 0)), False)
sketch8.addGeometry(Part.LineSegment(App.Vector(-15, 73, 0), App.Vector(-15, 48.3, 0)), False)
sketch8.addGeometry(Part.ArcOfCircle(Part.Circle(App.Vector(-11.8, 48.3, 0), App.Vector(0, 0, 1), 3.2), math.radians(-180), math.radians(-90)), False)
sketch8.addGeometry(Part.LineSegment(App.Vector(-11.8, 45.2, 0), App.Vector(25, 45.2, 0)), False)
sketch8.addGeometry(Part.LineSegment(App.Vector(25, 45.2, 0), App.Vector(25, 73, 0)), False)
sketch8.addConstraint(Sketcher.Constraint("Coincident", 0, 2, 1, 1))
sketch8.addConstraint(Sketcher.Constraint("Tangent", 1, 2, 2, 1))
sketch8.addConstraint(Sketcher.Constraint("Tangent", 2, 2, 3, 1))
sketch8.addConstraint(Sketcher.Constraint("Coincident", 3, 2, 4, 1))
sketch8.addConstraint(Sketcher.Constraint("Coincident", 4, 2, 0, 1))
sketch8.addConstraint(Sketcher.Constraint("Horizontal", 0))
sketch8.addConstraint(Sketcher.Constraint("Vertical", 1))
sketch8.addConstraint(Sketcher.Constraint("Horizontal", 3))
sketch8.addConstraint(Sketcher.Constraint("Vertical", 4))
sketch8.addConstraint(Sketcher.Constraint("DistanceX", 0, 2, 0, 1, Q("40 mm")))
sketch8.addConstraint(Sketcher.Constraint("DistanceX", 0, 2, -1, 1, Q("15 mm")))
sketch8.addConstraint(Sketcher.Constraint("DistanceY", -1, 1, 0, 2, Q("73.000002 mm")))
sketch8.addConstraint(Sketcher.Constraint("Radius", 2, Q("3.175 mm")))
sketch8.addConstraint(Sketcher.Constraint("DistanceY", 4, 1, 4, 2, Q("27.85 mm")))
pocket6 = body.newObject("PartDesign::Pocket", "Pocket005")
pocket6.Profile = sketch8
pocket6.Type = "UpToFirst"

# Sketch on YZ plane
sketch9 = body.newObject("Sketcher::SketchObject", "Sketch008")
sketch9.AttachmentSupport = (doc.getObject("YZ_Plane"), [""])
sketch9.MapMode = "FlatFace"
sketch9.AttachmentOffset = App.Placement(App.Vector(0, 0, -15), App.Rotation())
sketch9.addGeometry(Part.Circle(App.Vector(-7.5, 67, 0), App.Vector(0, 0, 1), 2.3), False)
sketch9.addConstraint(Sketcher.Constraint("Diameter", 0, Q("4.6 mm")))
sketch9.addConstraint(Sketcher.Constraint("DistanceY", -1, 1, 0, 3, Q("67.000002 mm")))
sketch9.addConstraint(Sketcher.Constraint("DistanceX", 0, 3, -1, 1, Q("7.499992 mm")))
pocket7 = body.newObject("PartDesign::Pocket", "Pocket006")
pocket7.Profile = sketch9
pocket7.Type = "UpToFirst"

# Sketch on YZ plane
sketch10 = body.newObject("Sketcher::SketchObject", "Sketch009")
sketch10.AttachmentSupport = (doc.getObject("YZ_Plane"), [""])
sketch10.MapMode = "FlatFace"
sketch10.AttachmentOffset = App.Placement(App.Vector(0, 0, -15), App.Rotation())
sketch10.addGeometry(Part.Circle(App.Vector(-7.5, 25.8, 0), App.Vector(0, 0, 1), 2.3), False)
sketch10.addConstraint(Sketcher.Constraint("Diameter", 0, Q("4.6 mm")))
sketch10.addConstraint(Sketcher.Constraint("DistanceY", -1, 1, 0, 3, Q("25.825002 mm")))
sketch10.addConstraint(Sketcher.Constraint("DistanceX", 0, 3, -1, 1, Q("7.499992 mm")))
pocket8 = body.newObject("PartDesign::Pocket", "Pocket007")
pocket8.Profile = sketch10
pocket8.Type = "UpToFirst"

# Sketch on XZ plane
sketch11 = body.newObject("Sketcher::SketchObject", "Sketch010")
sketch11.AttachmentSupport = (doc.getObject("XZ_Plane"), [""])
sketch11.MapMode = "FlatFace"
sketch11.AttachmentOffset = App.Placement(App.Vector(0, 0, 11.999992), App.Rotation())
sketch11.addGeometry(Part.Circle(App.Vector(-9, 54, 0), App.Vector(0, 0, 1), 6), False)
sketch11.addConstraint(Sketcher.Constraint("Diameter", 0, Q("12 mm")))
sketch11.addConstraint(Sketcher.Constraint("DistanceX", 0, 3, -1, 1, Q("9.455 mm")))
sketch11.addConstraint(Sketcher.Constraint("DistanceY", -1, 1, 0, 3, Q("53.912002 mm")))
pocket9 = body.newObject("PartDesign::Pocket", "Pocket008")
pocket9.Profile = sketch11
pocket9.Type = "ThroughAll"

doc.recompute()
